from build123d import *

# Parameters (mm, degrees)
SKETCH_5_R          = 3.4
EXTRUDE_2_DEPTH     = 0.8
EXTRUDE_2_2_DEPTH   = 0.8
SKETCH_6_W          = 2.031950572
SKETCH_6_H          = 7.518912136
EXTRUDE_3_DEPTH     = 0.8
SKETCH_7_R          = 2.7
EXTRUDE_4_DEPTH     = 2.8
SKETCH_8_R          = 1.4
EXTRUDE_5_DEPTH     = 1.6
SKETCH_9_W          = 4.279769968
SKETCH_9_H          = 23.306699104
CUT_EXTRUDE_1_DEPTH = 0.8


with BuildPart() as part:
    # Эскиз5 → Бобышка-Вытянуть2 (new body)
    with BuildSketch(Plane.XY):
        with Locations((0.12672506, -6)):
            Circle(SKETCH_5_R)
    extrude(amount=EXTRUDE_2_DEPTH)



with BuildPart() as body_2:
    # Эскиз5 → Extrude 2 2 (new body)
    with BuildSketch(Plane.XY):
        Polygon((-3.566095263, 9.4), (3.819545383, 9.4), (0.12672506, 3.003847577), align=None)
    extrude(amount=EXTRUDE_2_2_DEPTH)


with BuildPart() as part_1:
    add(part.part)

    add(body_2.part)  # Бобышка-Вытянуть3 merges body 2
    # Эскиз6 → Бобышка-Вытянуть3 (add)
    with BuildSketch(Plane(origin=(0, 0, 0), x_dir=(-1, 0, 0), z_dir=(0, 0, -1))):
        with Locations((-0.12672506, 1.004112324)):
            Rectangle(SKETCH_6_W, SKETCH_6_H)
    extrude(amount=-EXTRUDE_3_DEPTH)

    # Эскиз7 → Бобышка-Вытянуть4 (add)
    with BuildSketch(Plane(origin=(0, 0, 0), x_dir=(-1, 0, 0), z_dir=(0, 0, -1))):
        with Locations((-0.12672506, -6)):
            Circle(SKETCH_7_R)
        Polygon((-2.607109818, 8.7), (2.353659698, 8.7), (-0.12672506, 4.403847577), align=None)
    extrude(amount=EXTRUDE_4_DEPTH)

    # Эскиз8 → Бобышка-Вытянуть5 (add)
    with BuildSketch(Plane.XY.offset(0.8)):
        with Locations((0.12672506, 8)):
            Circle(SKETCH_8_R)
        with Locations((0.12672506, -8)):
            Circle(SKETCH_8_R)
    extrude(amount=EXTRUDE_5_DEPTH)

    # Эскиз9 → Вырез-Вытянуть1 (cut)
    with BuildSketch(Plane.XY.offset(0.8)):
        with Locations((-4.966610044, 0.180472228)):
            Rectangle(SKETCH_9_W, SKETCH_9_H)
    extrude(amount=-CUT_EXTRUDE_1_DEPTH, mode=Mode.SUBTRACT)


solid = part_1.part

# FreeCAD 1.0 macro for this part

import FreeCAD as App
import Part
import Sketcher

V = App.Vector
Q = App.Units.Quantity


def add_polygon(sketch, points):
    """Adds a closed chain of lines whose ends are joined by coincident constraints."""
    first, n = sketch.GeometryCount, len(points)
    for a, b in zip(points, points[1:] + points[:1]):
        sketch.addGeometry(Part.LineSegment(App.Vector(*a, 0), App.Vector(*b, 0)), False)
    for i in range(n):
        sketch.addConstraint(Sketcher.Constraint("Coincident", first + i, 2, first + (i + 1) % n, 1))

doc = App.newDocument("Part")
body = doc.addObject("PartDesign::Body", "Body")

# Sketch on XY plane
sketch1 = body.newObject("Sketcher::SketchObject", "Sketch")
sketch1.AttachmentSupport = (doc.getObject("XY_Plane"), [""])
sketch1.MapMode = "FlatFace"
sketch1.addGeometry(Part.Circle(V(0.1, -6, 0), V(0, 0, 1), 3.4), False)
sketch1.addConstraint(Sketcher.Constraint("Diameter", 0, Q("6.8 mm")))
sketch1.addConstraint(Sketcher.Constraint("DistanceY", 0, 3, -1, 1, Q("6 mm")))
sketch1.addConstraint(Sketcher.Constraint("DistanceX", -1, 1, 0, 3, Q("0.126725 mm")))
pad1 = body.newObject("PartDesign::Pad", "Pad")
pad1.Profile = sketch1
pad1.Length = 0.8
body2 = doc.addObject("PartDesign::Body", "Body001")

# Sketch on XY plane
sketch2 = body2.newObject("Sketcher::SketchObject", "Sketch001")
sketch2.AttachmentSupport = (doc.getObject("XY_Plane001"), [""])
sketch2.MapMode = "FlatFace"
add_polygon(sketch2, [(4, 9), (-4, 9), (0, 3)])  # lines 0-2
sketch2.addConstraint(Sketcher.Constraint("Horizontal", 0))
sketch2.addConstraint(Sketcher.Constraint("Equal", 1, 2))
sketch2.addConstraint(Sketcher.Constraint("Angle", 1, Q("-60 deg")))
sketch2.addConstraint(Sketcher.Constraint("DistanceY", -1, 1, 0, 2, Q("9.4 mm")))
sketch2.addConstraint(Sketcher.Constraint("DistanceX", 0, 2, 0, 1, Q("7.385641 mm")))
sketch2.addConstraint(Sketcher.Constraint("DistanceX", 0, 2, -1, 1, Q("3.566095 mm")))
pad2 = body2.newObject("PartDesign::Pad", "Pad001")
pad2.Profile = sketch2
pad2.Length = 0.8
body.AllowCompound = True
doc.recompute()

boolean = body.newObject("PartDesign::Boolean", "Boolean")
boolean.Type = "Fuse"
boolean.addObjects([body2])

# Sketch on XY plane
sketch3 = body.newObject("Sketcher::SketchObject", "Sketch002")
sketch3.AttachmentSupport = (doc.getObject("XY_Plane"), [""])
sketch3.MapMode = "FlatFace"
add_polygon(sketch3, [(1.1, 4.8), (1.1, -2.8), (-0.9, -2.8), (-0.9, 4.8)])  # lines 0-3
sketch3.addConstraint(Sketcher.Constraint("Vertical", 0))
sketch3.addConstraint(Sketcher.Constraint("Horizontal", 1))
sketch3.addConstraint(Sketcher.Constraint("Vertical", 2))
sketch3.addConstraint(Sketcher.Constraint("Horizontal", 3))
sketch3.addConstraint(Sketcher.Constraint("DistanceX", 1, 2, 1, 1, Q("2.031951 mm")))
sketch3.addConstraint(Sketcher.Constraint("DistanceX", -1, 1, 0, 2, Q("1.1427 mm")))
sketch3.addConstraint(Sketcher.Constraint("DistanceY", 0, 2, 0, 1, Q("7.518912 mm")))
sketch3.addConstraint(Sketcher.Constraint("DistanceY", -1, 1, 2, 2, Q("4.763568 mm")))
pad3 = body.newObject("PartDesign::Pad", "Pad002")
pad3.Profile = sketch3
pad3.Length = 0.8

# Sketch on XY plane
sketch4 = body.newObject("Sketcher::SketchObject", "Sketch003")
sketch4.AttachmentSupport = (doc.getObject("XY_Plane"), [""])
sketch4.MapMode = "FlatFace"
sketch4.addGeometry(Part.Circle(V(0.1, -6, 0), V(0, 0, 1), 2.7), False)  # 0
add_polygon(sketch4, [(-2.4, 8.7), (2.6, 8.7), (0.1, 4.4)])  # lines 1-3
sketch4.addConstraint(Sketcher.Constraint("Horizontal", 1))
sketch4.addConstraint(Sketcher.Constraint("Vertical", 0, 3, 2, 2))
sketch4.addConstraint(Sketcher.Constraint("Equal", 2, 3))
sketch4.addConstraint(Sketcher.Constraint("Diameter", 0, Q("5.4 mm")))
sketch4.addConstraint(Sketcher.Constraint("Angle", 2, Q("-120 deg")))
sketch4.addConstraint(Sketcher.Constraint("DistanceY", 0, 3, -1, 1, Q("6 mm")))
sketch4.addConstraint(Sketcher.Constraint("DistanceY", -1, 1, 1, 2, Q("8.7 mm")))
sketch4.addConstraint(Sketcher.Constraint("DistanceX", 1, 1, 1, 2, Q("4.96077 mm")))
sketch4.addConstraint(Sketcher.Constraint("DistanceX", -1, 1, 1, 2, Q("2.60711 mm")))
pad4 = body.newObject("PartDesign::Pad", "Pad003")
pad4.Profile = sketch4
pad4.Length = 2.8
pad4.Reversed = True

# Sketch on XY plane
sketch5 = body.newObject("Sketcher::SketchObject", "Sketch004")
sketch5.AttachmentSupport = (doc.getObject("XY_Plane"), [""])
sketch5.MapMode = "FlatFace"
sketch5.AttachmentOffset = App.Placement(V(0, 0, 0.8), App.Rotation())
sketch5.addGeometry(Part.Circle(V(0.1, 8, 0), V(0, 0, 1), 1.4), False)
sketch5.addGeometry(Part.Circle(V(0.1, -8, 0), V(0, 0, 1), 1.4), False)
sketch5.addConstraint(Sketcher.Constraint("Equal", 0, 1))
sketch5.addConstraint(Sketcher.Constraint("Symmetric", 0, 3, 1, 3, -1))
sketch5.addConstraint(Sketcher.Constraint("Diameter", 0, Q("2.8 mm")))
sketch5.addConstraint(Sketcher.Constraint("DistanceY", -1, 1, 0, 3, Q("8 mm")))
sketch5.addConstraint(Sketcher.Constraint("DistanceX", -1, 1, 0, 3, Q("0.126725 mm")))
pad5 = body.newObject("PartDesign::Pad", "Pad004")
pad5.Profile = sketch5
pad5.Length = 1.6

# Sketch on XY plane
sketch6 = body.newObject("Sketcher::SketchObject", "Sketch005")
sketch6.AttachmentSupport = (doc.getObject("XY_Plane"), [""])
sketch6.MapMode = "FlatFace"
sketch6.AttachmentOffset = App.Placement(V(0, 0, 0.8), App.Rotation())
add_polygon(sketch6, [(-7.1, 11.8), (-7.1, -11.5), (-2.8, -11.5), (-2.8, 11.8)])  # lines 0-3
sketch6.addConstraint(Sketcher.Constraint("Vertical", 0))
sketch6.addConstraint(Sketcher.Constraint("Horizontal", 1))
sketch6.addConstraint(Sketcher.Constraint("Vertical", 2))
sketch6.addConstraint(Sketcher.Constraint("Horizontal", 3))
sketch6.addConstraint(Sketcher.Constraint("DistanceY", 0, 2, 0, 1, Q("23.306699 mm")))
sketch6.addConstraint(Sketcher.Constraint("DistanceX", 1, 1, 1, 2, Q("4.27977 mm")))
sketch6.addConstraint(Sketcher.Constraint("DistanceY", -1, 1, 2, 2, Q("11.833822 mm")))
sketch6.addConstraint(Sketcher.Constraint("DistanceX", 0, 2, -1, 1, Q("7.106495 mm")))
pocket1 = body.newObject("PartDesign::Pocket", "Pocket")
pocket1.Profile = sketch6
pocket1.Length = 0.8

doc.recompute()
